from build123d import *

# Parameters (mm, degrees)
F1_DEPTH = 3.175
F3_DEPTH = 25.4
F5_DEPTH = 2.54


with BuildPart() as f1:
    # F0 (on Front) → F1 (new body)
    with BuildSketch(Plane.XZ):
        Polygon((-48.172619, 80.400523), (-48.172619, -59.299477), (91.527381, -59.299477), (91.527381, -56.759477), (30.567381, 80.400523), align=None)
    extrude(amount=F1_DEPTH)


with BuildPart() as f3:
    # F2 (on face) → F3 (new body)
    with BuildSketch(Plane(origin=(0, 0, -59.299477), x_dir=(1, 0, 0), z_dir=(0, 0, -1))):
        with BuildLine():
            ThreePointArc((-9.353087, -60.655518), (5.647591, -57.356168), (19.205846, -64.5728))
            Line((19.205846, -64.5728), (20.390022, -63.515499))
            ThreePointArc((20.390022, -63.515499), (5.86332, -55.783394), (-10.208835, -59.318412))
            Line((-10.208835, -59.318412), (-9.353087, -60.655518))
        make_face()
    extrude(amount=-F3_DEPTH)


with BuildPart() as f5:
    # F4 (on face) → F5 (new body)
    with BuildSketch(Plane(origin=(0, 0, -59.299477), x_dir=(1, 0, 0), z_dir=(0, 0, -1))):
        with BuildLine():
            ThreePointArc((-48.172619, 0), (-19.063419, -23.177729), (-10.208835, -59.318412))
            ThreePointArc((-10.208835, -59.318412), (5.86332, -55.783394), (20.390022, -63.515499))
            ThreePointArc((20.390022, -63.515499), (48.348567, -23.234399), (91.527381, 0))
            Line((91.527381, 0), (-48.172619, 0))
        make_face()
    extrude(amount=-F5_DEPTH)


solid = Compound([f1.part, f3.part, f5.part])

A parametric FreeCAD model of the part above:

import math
import FreeCAD as App
import Part
import Sketcher
Q = App.Units.Quantity

doc = App.newDocument("Part")
params = doc.addObject("Spreadsheet::Sheet", "Params")
for row, (alias, value) in enumerate([
    ("sketch1_width", "5.5 in"),
    ("sketch1_width2", "3.1 in"),
    ("sketch1_height", "0.1 in"),
    ("pad1_length", "0.125 in"),
    ("sketch2_radius", "0.875 in"),
    ("sketch2_radius2", "0.9375 in"),
    ("pad2_length", "1 in"),
    ("sketch3_width", "5.5 in"),
    ("sketch3_radius", "0.9375 in"),
    ("pad3_length", "0.1 in"),
], start=1):
    params.set(f"A{row}", alias)
    params.set(f"B{row}", "=" + value)
    params.setAlias(f"B{row}", alias)

body = doc.addObject("PartDesign::Body", "Body")

sketch1 = body.newObject("Sketcher::SketchObject", "Sketch")
sketch1.AttachmentSupport = (doc.getObject("XZ_Plane"), [""])
sketch1.MapMode = "FlatFace"
sketch1.addGeometry([
    Part.LineSegment(App.Vector(-48.172619, 80.400523, 0), App.Vector(-48.172619, -59.299477, 0)),
    Part.LineSegment(App.Vector(-48.172619, -59.299477, 0), App.Vector(91.527381, -59.299477, 0)),
    Part.LineSegment(App.Vector(91.527381, -59.299477, 0), App.Vector(91.527381, -56.759477, 0)),
    Part.LineSegment(App.Vector(91.527381, -56.759477, 0), App.Vector(30.567381, 80.400523, 0)),
    Part.LineSegment(App.Vector(30.567381, 80.400523, 0), App.Vector(-48.172619, 80.400523, 0)),
], False)
sketch1.addConstraint([
    Sketcher.Constraint("Coincident", 0, 2, 1, 1),
    Sketcher.Constraint("Coincident", 1, 2, 2, 1),
    Sketcher.Constraint("Coincident", 2, 2, 3, 1),
    Sketcher.Constraint("Coincident", 3, 2, 4, 1),
    Sketcher.Constraint("Coincident", 4, 2, 0, 1),
    Sketcher.Constraint("Vertical", 0),
    Sketcher.Constraint("Horizontal", 1),
    Sketcher.Constraint("Vertical", 2),
    Sketcher.Constraint("Horizontal", 4),
    Sketcher.Constraint("Equal", 1, 0),
    Sketcher.Constraint("DistanceX", 1, 1, 1, 2, Q("5.5 in")),
    Sketcher.Constraint("DistanceX", 4, 2, 4, 1, Q("3.1 in")),
    Sketcher.Constraint("DistanceY", 2, 1, 2, 2, Q("0.1 in")),
    Sketcher.Constraint("DistanceX", 0, 2, -1, 1, 48.172619),
    Sketcher.Constraint("DistanceY", 0, 2, -1, 1, 59.299477),
])
sketch1.setExpression("Constraints[10]", "Params.sketch1_width")
sketch1.setExpression("Constraints[11]", "Params.sketch1_width2")
sketch1.setExpression("Constraints[12]", "Params.sketch1_height")
pad1 = body.newObject("PartDesign::Pad", "Pad")
pad1.Profile = sketch1
pad1.setExpression("Length", "Params.pad1_length")
body2 = doc.addObject("PartDesign::Body", "Body001")

sketch2 = body2.newObject("Sketcher::SketchObject", "Sketch001")
sketch2.AttachmentSupport = (doc.getObject("XY_Plane001"), [""])
sketch2.MapMode = "FlatFace"
sketch2.AttachmentOffset = App.Placement(App.Vector(0, 0, -59.299477), App.Rotation())
sketch2.addGeometry([
    Part.ArcOfCircle(Part.Circle(App.Vector(2.627381, 79.374999, 0), App.Vector(0, 0, 1), 22.224999), math.radians(-122.619243), math.radians(-41.760297)),
    Part.LineSegment(App.Vector(19.205846, 64.5728, 0), App.Vector(20.390022, 63.515499, 0)),
    Part.ArcOfCircle(Part.Circle(App.Vector(2.627381, 79.375, 0), App.Vector(0, 0, 1), 23.8125), math.radians(-122.619243), math.radians(-41.760301)),
    Part.LineSegment(App.Vector(-10.208835, 59.318412, 0), App.Vector(-9.353087, 60.655518, 0)),
], False)
sketch2.addConstraint([
    Sketcher.Constraint("Coincident", 0, 2, 1, 1),
    Sketcher.Constraint("Coincident", 1, 2, 2, 2),
    Sketcher.Constraint("Coincident", 2, 1, 3, 1),
    Sketcher.Constraint("Coincident", 3, 2, 0, 1),
    Sketcher.Constraint("Coincident", 2, 3, 0, 3),
    Sketcher.Constraint("Radius", 0, Q("0.875 in")),
    Sketcher.Constraint("Radius", 2, Q("0.9375 in")),
    Sketcher.Constraint("DistanceY", -1, 1, 0, 3, Q("3.125 in")),
    Sketcher.Constraint("DistanceY", -1, 1, 0, 2, 64.5728),
    Sketcher.Constraint("DistanceY", -1, 1, 1, 2, 63.515499),
    Sketcher.Constraint("DistanceX", -1, 1, 0, 3, 2.627381),
    Sketcher.Constraint("DistanceY", -1, 1, 2, 1, 59.318412),
    Sketcher.Constraint("DistanceX", 2, 1, 3, 2, 0.855748),
])
sketch2.setExpression("Constraints[5]", "Params.sketch2_radius")
sketch2.setExpression("Constraints[6]", "Params.sketch2_radius2")
pad2 = body2.newObject("PartDesign::Pad", "Pad001")
pad2.Profile = sketch2
pad2.setExpression("Length", "Params.pad2_length")
body3 = doc.addObject("PartDesign::Body", "Body002")

sketch3 = body3.newObject("Sketcher::SketchObject", "Sketch002")
sketch3.AttachmentSupport = (doc.getObject("XY_Plane002"), [""])
sketch3.MapMode = "FlatFace"
sketch3.AttachmentOffset = App.Placement(App.Vector(0, 0, -59.299477), App.Rotation())
sketch3.addGeometry([
    Part.ArcOfCircle(Part.Circle(App.Vector(-67.557593, 54.214001, 0), App.Vector(0, 0, 1), 57.575473), math.radians(-70.324779), math.radians(5.086293)),
    Part.ArcOfCircle(Part.Circle(App.Vector(2.627381, 79.375, 0), App.Vector(0, 0, 1), 23.8125), math.radians(-122.619243), math.radians(-41.760301)),
    Part.ArcOfCircle(Part.Circle(App.Vector(118.417553, 101.711663, 0), App.Vector(0, 0, 1), 105.206196), math.radians(-158.711758), math.radians(-104.808841)),
    Part.LineSegment(App.Vector(91.527381, 0, 0), App.Vector(-48.172619, 0, 0)),
], False)
sketch3.addConstraint([
    Sketcher.Constraint("Coincident", 0, 2, 1, 1),
    Sketcher.Constraint("Coincident", 1, 2, 2, 1),
    Sketcher.Constraint("Coincident", 2, 2, 3, 1),
    Sketcher.Constraint("Coincident", 3, 2, 0, 1),
    Sketcher.Constraint("Horizontal", 3),
    Sketcher.Constraint("PointOnObject", 2, 2, -1),
    Sketcher.Constraint("DistanceX", 3, 2, 3, 1, Q("5.5 in")),
    Sketcher.Constraint("Radius", 1, Q("0.9375 in")),
    Sketcher.Constraint("DistanceX", 3, 2, 1, 3, Q("2 in")),
    Sketcher.Constraint("DistanceY", -1, 1, 1, 3, Q("3.125 in")),
    Sketcher.Constraint("Radius", 0, 57.575473),
    Sketcher.Constraint("Radius", 2, 105.206196),
    Sketcher.Constraint("DistanceY", -1, 1, 0, 3, 54.214001),
    Sketcher.Constraint("DistanceY", -1, 1, 1, 2, 63.515499),
    Sketcher.Constraint("DistanceX", -1, 1, 1, 3, 2.627381),
])
sketch3.setExpression("Constraints[6]", "Params.sketch3_width")
sketch3.setExpression("Constraints[7]", "Params.sketch3_radius")
pad3 = body3.newObject("PartDesign::Pad", "Pad002")
pad3.Profile = sketch3
pad3.setExpression("Length", "Params.pad3_length")

doc.recompute()
